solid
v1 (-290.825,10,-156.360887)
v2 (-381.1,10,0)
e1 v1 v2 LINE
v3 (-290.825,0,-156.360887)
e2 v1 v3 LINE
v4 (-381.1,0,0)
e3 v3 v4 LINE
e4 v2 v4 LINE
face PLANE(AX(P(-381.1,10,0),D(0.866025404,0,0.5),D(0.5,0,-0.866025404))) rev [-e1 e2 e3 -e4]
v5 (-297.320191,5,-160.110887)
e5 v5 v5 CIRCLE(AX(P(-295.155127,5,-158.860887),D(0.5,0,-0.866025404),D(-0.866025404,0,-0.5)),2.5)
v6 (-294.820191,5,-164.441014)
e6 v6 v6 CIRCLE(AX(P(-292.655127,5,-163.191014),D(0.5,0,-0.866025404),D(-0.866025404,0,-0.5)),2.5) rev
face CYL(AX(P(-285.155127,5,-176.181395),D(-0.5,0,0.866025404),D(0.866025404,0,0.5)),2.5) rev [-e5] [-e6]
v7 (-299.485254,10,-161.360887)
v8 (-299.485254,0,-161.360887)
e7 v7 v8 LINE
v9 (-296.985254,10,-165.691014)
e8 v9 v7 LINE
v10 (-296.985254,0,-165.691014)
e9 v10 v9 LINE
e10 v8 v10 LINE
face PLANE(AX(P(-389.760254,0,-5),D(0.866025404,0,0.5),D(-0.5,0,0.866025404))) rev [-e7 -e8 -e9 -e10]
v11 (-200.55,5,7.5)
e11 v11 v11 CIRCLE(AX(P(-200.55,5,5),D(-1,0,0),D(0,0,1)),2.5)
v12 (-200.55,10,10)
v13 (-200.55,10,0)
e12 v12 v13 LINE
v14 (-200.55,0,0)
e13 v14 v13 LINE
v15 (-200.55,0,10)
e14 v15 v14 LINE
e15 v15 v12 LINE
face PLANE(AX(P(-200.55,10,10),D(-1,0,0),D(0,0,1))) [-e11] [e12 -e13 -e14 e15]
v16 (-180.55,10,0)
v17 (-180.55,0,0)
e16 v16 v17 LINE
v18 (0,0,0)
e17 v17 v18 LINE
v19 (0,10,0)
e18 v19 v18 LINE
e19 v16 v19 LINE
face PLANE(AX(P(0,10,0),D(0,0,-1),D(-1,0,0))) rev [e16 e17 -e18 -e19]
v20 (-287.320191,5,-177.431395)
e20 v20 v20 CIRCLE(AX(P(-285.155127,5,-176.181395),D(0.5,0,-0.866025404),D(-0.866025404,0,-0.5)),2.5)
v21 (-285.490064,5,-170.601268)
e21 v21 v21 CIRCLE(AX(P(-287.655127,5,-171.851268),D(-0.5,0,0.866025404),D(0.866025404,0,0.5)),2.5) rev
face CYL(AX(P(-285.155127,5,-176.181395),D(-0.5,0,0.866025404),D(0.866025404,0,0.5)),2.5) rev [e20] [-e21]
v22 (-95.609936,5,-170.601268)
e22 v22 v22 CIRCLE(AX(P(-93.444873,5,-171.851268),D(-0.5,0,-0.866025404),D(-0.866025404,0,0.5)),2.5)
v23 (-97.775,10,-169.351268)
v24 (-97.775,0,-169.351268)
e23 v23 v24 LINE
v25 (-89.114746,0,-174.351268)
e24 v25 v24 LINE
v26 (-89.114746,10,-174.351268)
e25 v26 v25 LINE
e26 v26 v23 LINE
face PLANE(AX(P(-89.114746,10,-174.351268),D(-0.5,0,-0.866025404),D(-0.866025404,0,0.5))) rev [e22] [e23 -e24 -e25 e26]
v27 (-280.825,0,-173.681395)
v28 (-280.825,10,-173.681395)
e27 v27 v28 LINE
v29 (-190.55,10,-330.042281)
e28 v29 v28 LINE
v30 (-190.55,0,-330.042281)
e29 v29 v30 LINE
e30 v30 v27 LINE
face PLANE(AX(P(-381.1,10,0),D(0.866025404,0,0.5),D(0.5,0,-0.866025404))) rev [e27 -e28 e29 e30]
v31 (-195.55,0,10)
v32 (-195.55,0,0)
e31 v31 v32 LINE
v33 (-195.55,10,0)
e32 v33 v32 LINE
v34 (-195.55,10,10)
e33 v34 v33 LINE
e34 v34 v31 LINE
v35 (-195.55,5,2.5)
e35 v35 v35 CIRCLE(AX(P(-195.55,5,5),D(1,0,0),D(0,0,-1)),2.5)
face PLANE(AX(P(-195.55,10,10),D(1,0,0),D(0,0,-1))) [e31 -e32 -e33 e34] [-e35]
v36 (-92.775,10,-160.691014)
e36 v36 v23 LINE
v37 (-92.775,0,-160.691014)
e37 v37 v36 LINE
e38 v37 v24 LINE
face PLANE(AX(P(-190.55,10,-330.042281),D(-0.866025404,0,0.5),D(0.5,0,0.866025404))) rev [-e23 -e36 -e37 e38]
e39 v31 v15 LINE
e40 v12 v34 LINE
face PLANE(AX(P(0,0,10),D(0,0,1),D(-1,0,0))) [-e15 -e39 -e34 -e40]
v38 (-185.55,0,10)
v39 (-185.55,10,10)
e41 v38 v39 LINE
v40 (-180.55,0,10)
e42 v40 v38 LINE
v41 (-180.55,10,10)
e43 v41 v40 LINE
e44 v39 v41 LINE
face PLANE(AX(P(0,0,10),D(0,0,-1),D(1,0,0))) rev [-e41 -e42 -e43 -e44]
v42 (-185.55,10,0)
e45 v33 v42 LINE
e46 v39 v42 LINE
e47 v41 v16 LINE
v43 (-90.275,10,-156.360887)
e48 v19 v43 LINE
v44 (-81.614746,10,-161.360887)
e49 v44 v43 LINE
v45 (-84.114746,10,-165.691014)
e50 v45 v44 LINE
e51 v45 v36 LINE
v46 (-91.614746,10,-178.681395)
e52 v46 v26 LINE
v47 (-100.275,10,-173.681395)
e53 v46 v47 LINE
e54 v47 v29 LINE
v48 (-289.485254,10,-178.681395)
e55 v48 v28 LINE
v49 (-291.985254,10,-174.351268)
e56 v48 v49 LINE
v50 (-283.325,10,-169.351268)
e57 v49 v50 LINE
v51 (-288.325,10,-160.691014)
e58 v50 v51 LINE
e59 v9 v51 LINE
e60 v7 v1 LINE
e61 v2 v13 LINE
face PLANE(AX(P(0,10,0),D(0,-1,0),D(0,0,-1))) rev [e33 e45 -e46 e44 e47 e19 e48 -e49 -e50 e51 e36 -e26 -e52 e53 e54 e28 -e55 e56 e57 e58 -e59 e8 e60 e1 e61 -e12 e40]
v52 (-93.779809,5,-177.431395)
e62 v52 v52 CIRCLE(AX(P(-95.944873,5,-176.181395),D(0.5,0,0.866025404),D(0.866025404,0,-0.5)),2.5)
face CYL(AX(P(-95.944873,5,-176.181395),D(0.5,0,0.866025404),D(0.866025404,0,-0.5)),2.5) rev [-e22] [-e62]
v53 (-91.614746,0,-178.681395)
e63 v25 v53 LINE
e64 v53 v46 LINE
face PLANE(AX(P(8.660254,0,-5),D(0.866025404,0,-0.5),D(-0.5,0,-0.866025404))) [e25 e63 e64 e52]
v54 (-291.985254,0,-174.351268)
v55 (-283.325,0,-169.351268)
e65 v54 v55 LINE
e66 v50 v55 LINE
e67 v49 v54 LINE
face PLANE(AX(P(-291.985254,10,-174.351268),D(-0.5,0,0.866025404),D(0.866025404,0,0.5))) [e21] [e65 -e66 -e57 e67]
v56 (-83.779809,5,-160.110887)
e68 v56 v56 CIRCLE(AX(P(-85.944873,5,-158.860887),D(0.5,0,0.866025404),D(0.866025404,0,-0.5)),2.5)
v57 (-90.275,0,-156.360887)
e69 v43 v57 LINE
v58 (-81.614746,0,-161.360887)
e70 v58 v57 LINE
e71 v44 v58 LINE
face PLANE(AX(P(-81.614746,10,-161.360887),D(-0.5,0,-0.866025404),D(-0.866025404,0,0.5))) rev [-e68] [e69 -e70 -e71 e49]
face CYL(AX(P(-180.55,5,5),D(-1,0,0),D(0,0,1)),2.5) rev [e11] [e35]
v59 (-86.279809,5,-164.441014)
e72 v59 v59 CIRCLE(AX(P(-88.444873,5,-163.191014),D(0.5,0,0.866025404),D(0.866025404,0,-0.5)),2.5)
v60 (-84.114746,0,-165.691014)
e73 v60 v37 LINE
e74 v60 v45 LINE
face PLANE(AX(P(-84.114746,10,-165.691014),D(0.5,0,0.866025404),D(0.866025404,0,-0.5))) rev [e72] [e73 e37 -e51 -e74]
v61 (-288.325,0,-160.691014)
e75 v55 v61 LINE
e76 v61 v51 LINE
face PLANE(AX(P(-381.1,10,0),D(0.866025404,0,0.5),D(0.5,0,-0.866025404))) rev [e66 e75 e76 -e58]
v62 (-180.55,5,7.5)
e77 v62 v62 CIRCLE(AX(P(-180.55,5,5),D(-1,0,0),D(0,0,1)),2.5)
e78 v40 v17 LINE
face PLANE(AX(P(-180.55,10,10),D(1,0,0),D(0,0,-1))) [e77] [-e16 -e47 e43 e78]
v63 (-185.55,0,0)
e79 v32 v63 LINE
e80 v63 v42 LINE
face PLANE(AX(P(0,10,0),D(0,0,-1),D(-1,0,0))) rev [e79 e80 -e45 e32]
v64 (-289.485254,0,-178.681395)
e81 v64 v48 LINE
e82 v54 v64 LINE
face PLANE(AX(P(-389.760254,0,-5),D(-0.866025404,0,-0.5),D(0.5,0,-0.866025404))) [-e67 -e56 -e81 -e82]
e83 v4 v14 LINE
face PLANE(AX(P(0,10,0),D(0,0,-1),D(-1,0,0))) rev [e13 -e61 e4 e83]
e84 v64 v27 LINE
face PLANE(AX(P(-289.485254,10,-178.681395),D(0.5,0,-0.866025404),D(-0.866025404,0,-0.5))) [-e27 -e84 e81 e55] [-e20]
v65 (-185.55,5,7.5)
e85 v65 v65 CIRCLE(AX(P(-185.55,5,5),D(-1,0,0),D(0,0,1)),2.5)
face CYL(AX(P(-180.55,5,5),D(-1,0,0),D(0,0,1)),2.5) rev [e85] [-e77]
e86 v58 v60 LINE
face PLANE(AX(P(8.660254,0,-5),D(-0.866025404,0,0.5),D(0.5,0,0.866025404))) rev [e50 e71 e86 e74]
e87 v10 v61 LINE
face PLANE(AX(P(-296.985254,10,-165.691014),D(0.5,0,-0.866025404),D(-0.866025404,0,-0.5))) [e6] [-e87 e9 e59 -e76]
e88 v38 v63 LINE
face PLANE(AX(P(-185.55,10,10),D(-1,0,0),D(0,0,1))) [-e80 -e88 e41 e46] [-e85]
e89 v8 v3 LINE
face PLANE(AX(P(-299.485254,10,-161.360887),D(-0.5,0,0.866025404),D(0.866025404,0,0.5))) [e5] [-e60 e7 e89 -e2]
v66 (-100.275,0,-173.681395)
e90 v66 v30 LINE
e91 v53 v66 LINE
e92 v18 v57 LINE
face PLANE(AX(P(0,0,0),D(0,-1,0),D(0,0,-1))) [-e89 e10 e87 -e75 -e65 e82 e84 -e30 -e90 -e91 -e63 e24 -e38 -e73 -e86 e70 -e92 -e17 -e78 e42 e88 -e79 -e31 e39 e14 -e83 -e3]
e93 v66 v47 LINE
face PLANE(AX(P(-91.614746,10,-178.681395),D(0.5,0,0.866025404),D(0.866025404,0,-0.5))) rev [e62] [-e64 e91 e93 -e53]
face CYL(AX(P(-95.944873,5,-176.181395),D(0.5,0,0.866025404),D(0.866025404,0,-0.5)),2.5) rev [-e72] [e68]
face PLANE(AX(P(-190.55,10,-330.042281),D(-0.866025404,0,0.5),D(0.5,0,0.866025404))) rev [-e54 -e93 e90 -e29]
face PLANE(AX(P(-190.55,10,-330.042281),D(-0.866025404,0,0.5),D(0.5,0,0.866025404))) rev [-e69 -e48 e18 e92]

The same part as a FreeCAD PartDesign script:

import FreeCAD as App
import Part
import Sketcher
from FreeCAD import Vector
Q = App.Units.Quantity


def add_polygon(sketch, points):
    """Adds a closed chain of lines whose ends are joined by coincident constraints."""
    first, n = sketch.GeometryCount, len(points)
    for a, b in zip(points, points[1:] + points[:1]):
        sketch.addGeometry(Part.LineSegment(App.Vector(*a, 0), App.Vector(*b, 0)), False)
    for i in range(n):
        sketch.addConstraint(Sketcher.Constraint("Coincident", first + i, 2, first + (i + 1) % n, 1))

doc = App.newDocument("Part")
body = doc.addObject("PartDesign::Body", "Body")

sketch1 = doc.addObject("Sketcher::SketchObject", "Sketch")
body.addObject(sketch1)
sketch1.AttachmentSupport = (doc.XZ_Plane, [""])
sketch1.MapMode = "FlatFace"
add_polygon(sketch1, [(-191, -330), (-381, 0), (0, 0)])
sketch1.addConstraint(Sketcher.Constraint("Horizontal", 1))
sketch1.addConstraint(Sketcher.Constraint("Coincident", 1, 2, -1, 1))
sketch1.addConstraint(Sketcher.Constraint("Equal", 0, 2))
sketch1.addConstraint(Sketcher.Constraint("Angle", 0, Q("120 deg")))
sketch1.addConstraint(Sketcher.Constraint("DistanceX", 1, 1, 1, 2, 381.1))
pad1 = doc.addObject("PartDesign::Pad", "Pad")
body.addObject(pad1)
pad1.Profile = sketch1
pad1.Length = 10
pad1.Reversed = True

sketch2 = doc.addObject("Sketcher::SketchObject", "Sketch001")
body.addObject(sketch2)
sketch2.Placement = App.Placement(Vector(0, 0, 0), App.Rotation(Vector(-0.5, 0, -0.866025404), Vector(0, 1, 0), Vector(0.866025404, 0, -0.5), "ZXY"))
add_polygon(sketch2, [(196, 10), (196, 0), (201, 0), (201, 10)])
add_polygon(sketch2, [(181, 10), (181, 0), (186, 0), (186, 10)])
sketch2.addConstraint(Sketcher.Constraint("Vertical", 0))
sketch2.addConstraint(Sketcher.Constraint("Horizontal", 1))
sketch2.addConstraint(Sketcher.Constraint("Vertical", 2))
sketch2.addConstraint(Sketcher.Constraint("Horizontal", 3))
sketch2.addConstraint(Sketcher.Constraint("Vertical", 4))
sketch2.addConstraint(Sketcher.Constraint("Horizontal", 5))
sketch2.addConstraint(Sketcher.Constraint("Vertical", 6))
sketch2.addConstraint(Sketcher.Constraint("Horizontal", 7))
sketch2.addConstraint(Sketcher.Constraint("PointOnObject", 0, 2, -1))
sketch2.addConstraint(Sketcher.Constraint("PointOnObject", 4, 2, -1))
sketch2.addConstraint(Sketcher.Constraint("Horizontal", 3, 2, 6, 2))
sketch2.addConstraint(Sketcher.Constraint("Equal", 3, 5))
sketch2.addConstraint(Sketcher.Constraint("DistanceX", 1, 1, 1, 2, 5.0))
sketch2.addConstraint(Sketcher.Constraint("DistanceY", 0, 2, 0, 1, 10.0))
sketch2.addConstraint(Sketcher.Constraint("DistanceX", 4, 2, 0, 2, 15.0))
sketch2.addConstraint(Sketcher.Constraint("DistanceX", -1, 1, 0, 2, 195.55))
pad2 = doc.addObject("PartDesign::Pad", "Pad001")
body.addObject(pad2)
pad2.Profile = sketch2
pad2.Length = 10

sketch3 = doc.addObject("Sketcher::SketchObject", "Sketch002")
body.addObject(sketch3)
sketch3.Placement = App.Placement(Vector(-90.275, 0, -156.360887), App.Rotation(Vector(0.866025404, 0, -0.5), Vector(0, 1, 0), Vector(0.5, 0, 0.866025404), "ZXY"))
sketch3.addGeometry(Part.Circle(Vector(5, 5, 0), Vector(0, 0, 1), 2.5), False)
sketch3.addConstraint(Sketcher.Constraint("Diameter", 0, 5.0))
sketch3.addConstraint(Sketcher.Constraint("DistanceX", -1, 1, 0, 3, 5.0))
sketch3.addConstraint(Sketcher.Constraint("DistanceY", -1, 1, 0, 3, 5.0))
pocket1 = doc.addObject("PartDesign::Pocket", "Pocket")
body.addObject(pocket1)
pocket1.Profile = sketch3
pocket1.Length = 20
doc.recompute()

datumplane = doc.addObject("PartDesign::Plane", "DatumPlane")
body.addObject(datumplane)
datumplane.Placement = App.Placement(Vector(0, 0, 0), App.Rotation(Vector(-0.866025404, 0, -0.5), Vector(0, -1, 0), Vector(-0.5, 0, 0.866025404), "ZXY"))
mirrored = doc.addObject("PartDesign::Mirrored", "Mirrored")
body.addObject(mirrored)
mirrored.Originals = [pad2, pocket1]
mirrored.MirrorPlane = (datumplane, [""])
body.Tip = mirrored
doc.recompute()

datumplane2 = doc.addObject("PartDesign::Plane", "DatumPlane001")
body.addObject(datumplane2)
datumplane2.AttachmentSupport = (doc.YZ_Plane, [""])
datumplane2.MapMode = "FlatFace"
datumplane2.AttachmentOffset = App.Placement(Vector(0, 0, -190.55), App.Rotation())
mirrored2 = doc.addObject("PartDesign::Mirrored", "Mirrored001")
body.addObject(mirrored2)
mirrored2.Originals = [pad2, pocket1]
mirrored2.MirrorPlane = (datumplane2, [""])
body.Tip = mirrored2

sketch4 = doc.addObject("Sketcher::SketchObject", "Sketch003")
body.addObject(sketch4)
sketch4.AttachmentSupport = (doc.XY_Plane, [""])
sketch4.MapMode = "FlatFace"
add_polygon(sketch4, [(-186, 10), (-186, 0), (-181, 0), (-181, 10)])
add_polygon(sketch4, [(-201, 10), (-201, 0), (-196, 0), (-196, 10)])
sketch4.addConstraint(Sketcher.Constraint("Vertical", 0))
sketch4.addConstraint(Sketcher.Constraint("Horizontal", 1))
sketch4.addConstraint(Sketcher.Constraint("Vertical", 2))
sketch4.addConstraint(Sketcher.Constraint("Horizontal", 3))
sketch4.addConstraint(Sketcher.Constraint("Vertical", 4))
sketch4.addConstraint(Sketcher.Constraint("Horizontal", 5))
sketch4.addConstraint(Sketcher.Constraint("Vertical", 6))
sketch4.addConstraint(Sketcher.Constraint("Horizontal", 7))
sketch4.addConstraint(Sketcher.Constraint("PointOnObject", 0, 2, -1))
sketch4.addConstraint(Sketcher.Constraint("PointOnObject", 4, 2, -1))
sketch4.addConstraint(Sketcher.Constraint("Horizontal", 3, 2, 6, 2))
sketch4.addConstraint(Sketcher.Constraint("Equal", 3, 5))
sketch4.addConstraint(Sketcher.Constraint("DistanceX", 1, 1, 1, 2, 5.0))
sketch4.addConstraint(Sketcher.Constraint("DistanceY", 0, 2, 0, 1, 10.0))
sketch4.addConstraint(Sketcher.Constraint("DistanceX", 4, 2, 0, 2, 15.0))
sketch4.addConstraint(Sketcher.Constraint("DistanceX", 0, 2, -1, 1, 185.55))
pad3 = doc.addObject("PartDesign::Pad", "Pad002")
body.addObject(pad3)
pad3.Profile = sketch4
pad3.Length = 10

sketch5 = doc.addObject("Sketcher::SketchObject", "Sketch004")
body.addObject(sketch5)
sketch5.AttachmentSupport = (doc.YZ_Plane, [""])
sketch5.MapMode = "FlatFace"
sketch5.AttachmentOffset = App.Placement(Vector(0, 0, -200.55), App.Rotation())
sketch5.addGeometry(Part.Circle(Vector(5, 5, 0), Vector(0, 0, 1), 2.5), False)
sketch5.addConstraint(Sketcher.Constraint("Diameter", 0, 5.0))
sketch5.addConstraint(Sketcher.Constraint("DistanceX", -1, 1, 0, 3, 5.0))
sketch5.addConstraint(Sketcher.Constraint("DistanceY", -1, 1, 0, 3, 5.0))
pocket2 = doc.addObject("PartDesign::Pocket", "Pocket001")
body.addObject(pocket2)
pocket2.Profile = sketch5
pocket2.Length = 20
pocket2.Reversed = True

doc.recompute()
